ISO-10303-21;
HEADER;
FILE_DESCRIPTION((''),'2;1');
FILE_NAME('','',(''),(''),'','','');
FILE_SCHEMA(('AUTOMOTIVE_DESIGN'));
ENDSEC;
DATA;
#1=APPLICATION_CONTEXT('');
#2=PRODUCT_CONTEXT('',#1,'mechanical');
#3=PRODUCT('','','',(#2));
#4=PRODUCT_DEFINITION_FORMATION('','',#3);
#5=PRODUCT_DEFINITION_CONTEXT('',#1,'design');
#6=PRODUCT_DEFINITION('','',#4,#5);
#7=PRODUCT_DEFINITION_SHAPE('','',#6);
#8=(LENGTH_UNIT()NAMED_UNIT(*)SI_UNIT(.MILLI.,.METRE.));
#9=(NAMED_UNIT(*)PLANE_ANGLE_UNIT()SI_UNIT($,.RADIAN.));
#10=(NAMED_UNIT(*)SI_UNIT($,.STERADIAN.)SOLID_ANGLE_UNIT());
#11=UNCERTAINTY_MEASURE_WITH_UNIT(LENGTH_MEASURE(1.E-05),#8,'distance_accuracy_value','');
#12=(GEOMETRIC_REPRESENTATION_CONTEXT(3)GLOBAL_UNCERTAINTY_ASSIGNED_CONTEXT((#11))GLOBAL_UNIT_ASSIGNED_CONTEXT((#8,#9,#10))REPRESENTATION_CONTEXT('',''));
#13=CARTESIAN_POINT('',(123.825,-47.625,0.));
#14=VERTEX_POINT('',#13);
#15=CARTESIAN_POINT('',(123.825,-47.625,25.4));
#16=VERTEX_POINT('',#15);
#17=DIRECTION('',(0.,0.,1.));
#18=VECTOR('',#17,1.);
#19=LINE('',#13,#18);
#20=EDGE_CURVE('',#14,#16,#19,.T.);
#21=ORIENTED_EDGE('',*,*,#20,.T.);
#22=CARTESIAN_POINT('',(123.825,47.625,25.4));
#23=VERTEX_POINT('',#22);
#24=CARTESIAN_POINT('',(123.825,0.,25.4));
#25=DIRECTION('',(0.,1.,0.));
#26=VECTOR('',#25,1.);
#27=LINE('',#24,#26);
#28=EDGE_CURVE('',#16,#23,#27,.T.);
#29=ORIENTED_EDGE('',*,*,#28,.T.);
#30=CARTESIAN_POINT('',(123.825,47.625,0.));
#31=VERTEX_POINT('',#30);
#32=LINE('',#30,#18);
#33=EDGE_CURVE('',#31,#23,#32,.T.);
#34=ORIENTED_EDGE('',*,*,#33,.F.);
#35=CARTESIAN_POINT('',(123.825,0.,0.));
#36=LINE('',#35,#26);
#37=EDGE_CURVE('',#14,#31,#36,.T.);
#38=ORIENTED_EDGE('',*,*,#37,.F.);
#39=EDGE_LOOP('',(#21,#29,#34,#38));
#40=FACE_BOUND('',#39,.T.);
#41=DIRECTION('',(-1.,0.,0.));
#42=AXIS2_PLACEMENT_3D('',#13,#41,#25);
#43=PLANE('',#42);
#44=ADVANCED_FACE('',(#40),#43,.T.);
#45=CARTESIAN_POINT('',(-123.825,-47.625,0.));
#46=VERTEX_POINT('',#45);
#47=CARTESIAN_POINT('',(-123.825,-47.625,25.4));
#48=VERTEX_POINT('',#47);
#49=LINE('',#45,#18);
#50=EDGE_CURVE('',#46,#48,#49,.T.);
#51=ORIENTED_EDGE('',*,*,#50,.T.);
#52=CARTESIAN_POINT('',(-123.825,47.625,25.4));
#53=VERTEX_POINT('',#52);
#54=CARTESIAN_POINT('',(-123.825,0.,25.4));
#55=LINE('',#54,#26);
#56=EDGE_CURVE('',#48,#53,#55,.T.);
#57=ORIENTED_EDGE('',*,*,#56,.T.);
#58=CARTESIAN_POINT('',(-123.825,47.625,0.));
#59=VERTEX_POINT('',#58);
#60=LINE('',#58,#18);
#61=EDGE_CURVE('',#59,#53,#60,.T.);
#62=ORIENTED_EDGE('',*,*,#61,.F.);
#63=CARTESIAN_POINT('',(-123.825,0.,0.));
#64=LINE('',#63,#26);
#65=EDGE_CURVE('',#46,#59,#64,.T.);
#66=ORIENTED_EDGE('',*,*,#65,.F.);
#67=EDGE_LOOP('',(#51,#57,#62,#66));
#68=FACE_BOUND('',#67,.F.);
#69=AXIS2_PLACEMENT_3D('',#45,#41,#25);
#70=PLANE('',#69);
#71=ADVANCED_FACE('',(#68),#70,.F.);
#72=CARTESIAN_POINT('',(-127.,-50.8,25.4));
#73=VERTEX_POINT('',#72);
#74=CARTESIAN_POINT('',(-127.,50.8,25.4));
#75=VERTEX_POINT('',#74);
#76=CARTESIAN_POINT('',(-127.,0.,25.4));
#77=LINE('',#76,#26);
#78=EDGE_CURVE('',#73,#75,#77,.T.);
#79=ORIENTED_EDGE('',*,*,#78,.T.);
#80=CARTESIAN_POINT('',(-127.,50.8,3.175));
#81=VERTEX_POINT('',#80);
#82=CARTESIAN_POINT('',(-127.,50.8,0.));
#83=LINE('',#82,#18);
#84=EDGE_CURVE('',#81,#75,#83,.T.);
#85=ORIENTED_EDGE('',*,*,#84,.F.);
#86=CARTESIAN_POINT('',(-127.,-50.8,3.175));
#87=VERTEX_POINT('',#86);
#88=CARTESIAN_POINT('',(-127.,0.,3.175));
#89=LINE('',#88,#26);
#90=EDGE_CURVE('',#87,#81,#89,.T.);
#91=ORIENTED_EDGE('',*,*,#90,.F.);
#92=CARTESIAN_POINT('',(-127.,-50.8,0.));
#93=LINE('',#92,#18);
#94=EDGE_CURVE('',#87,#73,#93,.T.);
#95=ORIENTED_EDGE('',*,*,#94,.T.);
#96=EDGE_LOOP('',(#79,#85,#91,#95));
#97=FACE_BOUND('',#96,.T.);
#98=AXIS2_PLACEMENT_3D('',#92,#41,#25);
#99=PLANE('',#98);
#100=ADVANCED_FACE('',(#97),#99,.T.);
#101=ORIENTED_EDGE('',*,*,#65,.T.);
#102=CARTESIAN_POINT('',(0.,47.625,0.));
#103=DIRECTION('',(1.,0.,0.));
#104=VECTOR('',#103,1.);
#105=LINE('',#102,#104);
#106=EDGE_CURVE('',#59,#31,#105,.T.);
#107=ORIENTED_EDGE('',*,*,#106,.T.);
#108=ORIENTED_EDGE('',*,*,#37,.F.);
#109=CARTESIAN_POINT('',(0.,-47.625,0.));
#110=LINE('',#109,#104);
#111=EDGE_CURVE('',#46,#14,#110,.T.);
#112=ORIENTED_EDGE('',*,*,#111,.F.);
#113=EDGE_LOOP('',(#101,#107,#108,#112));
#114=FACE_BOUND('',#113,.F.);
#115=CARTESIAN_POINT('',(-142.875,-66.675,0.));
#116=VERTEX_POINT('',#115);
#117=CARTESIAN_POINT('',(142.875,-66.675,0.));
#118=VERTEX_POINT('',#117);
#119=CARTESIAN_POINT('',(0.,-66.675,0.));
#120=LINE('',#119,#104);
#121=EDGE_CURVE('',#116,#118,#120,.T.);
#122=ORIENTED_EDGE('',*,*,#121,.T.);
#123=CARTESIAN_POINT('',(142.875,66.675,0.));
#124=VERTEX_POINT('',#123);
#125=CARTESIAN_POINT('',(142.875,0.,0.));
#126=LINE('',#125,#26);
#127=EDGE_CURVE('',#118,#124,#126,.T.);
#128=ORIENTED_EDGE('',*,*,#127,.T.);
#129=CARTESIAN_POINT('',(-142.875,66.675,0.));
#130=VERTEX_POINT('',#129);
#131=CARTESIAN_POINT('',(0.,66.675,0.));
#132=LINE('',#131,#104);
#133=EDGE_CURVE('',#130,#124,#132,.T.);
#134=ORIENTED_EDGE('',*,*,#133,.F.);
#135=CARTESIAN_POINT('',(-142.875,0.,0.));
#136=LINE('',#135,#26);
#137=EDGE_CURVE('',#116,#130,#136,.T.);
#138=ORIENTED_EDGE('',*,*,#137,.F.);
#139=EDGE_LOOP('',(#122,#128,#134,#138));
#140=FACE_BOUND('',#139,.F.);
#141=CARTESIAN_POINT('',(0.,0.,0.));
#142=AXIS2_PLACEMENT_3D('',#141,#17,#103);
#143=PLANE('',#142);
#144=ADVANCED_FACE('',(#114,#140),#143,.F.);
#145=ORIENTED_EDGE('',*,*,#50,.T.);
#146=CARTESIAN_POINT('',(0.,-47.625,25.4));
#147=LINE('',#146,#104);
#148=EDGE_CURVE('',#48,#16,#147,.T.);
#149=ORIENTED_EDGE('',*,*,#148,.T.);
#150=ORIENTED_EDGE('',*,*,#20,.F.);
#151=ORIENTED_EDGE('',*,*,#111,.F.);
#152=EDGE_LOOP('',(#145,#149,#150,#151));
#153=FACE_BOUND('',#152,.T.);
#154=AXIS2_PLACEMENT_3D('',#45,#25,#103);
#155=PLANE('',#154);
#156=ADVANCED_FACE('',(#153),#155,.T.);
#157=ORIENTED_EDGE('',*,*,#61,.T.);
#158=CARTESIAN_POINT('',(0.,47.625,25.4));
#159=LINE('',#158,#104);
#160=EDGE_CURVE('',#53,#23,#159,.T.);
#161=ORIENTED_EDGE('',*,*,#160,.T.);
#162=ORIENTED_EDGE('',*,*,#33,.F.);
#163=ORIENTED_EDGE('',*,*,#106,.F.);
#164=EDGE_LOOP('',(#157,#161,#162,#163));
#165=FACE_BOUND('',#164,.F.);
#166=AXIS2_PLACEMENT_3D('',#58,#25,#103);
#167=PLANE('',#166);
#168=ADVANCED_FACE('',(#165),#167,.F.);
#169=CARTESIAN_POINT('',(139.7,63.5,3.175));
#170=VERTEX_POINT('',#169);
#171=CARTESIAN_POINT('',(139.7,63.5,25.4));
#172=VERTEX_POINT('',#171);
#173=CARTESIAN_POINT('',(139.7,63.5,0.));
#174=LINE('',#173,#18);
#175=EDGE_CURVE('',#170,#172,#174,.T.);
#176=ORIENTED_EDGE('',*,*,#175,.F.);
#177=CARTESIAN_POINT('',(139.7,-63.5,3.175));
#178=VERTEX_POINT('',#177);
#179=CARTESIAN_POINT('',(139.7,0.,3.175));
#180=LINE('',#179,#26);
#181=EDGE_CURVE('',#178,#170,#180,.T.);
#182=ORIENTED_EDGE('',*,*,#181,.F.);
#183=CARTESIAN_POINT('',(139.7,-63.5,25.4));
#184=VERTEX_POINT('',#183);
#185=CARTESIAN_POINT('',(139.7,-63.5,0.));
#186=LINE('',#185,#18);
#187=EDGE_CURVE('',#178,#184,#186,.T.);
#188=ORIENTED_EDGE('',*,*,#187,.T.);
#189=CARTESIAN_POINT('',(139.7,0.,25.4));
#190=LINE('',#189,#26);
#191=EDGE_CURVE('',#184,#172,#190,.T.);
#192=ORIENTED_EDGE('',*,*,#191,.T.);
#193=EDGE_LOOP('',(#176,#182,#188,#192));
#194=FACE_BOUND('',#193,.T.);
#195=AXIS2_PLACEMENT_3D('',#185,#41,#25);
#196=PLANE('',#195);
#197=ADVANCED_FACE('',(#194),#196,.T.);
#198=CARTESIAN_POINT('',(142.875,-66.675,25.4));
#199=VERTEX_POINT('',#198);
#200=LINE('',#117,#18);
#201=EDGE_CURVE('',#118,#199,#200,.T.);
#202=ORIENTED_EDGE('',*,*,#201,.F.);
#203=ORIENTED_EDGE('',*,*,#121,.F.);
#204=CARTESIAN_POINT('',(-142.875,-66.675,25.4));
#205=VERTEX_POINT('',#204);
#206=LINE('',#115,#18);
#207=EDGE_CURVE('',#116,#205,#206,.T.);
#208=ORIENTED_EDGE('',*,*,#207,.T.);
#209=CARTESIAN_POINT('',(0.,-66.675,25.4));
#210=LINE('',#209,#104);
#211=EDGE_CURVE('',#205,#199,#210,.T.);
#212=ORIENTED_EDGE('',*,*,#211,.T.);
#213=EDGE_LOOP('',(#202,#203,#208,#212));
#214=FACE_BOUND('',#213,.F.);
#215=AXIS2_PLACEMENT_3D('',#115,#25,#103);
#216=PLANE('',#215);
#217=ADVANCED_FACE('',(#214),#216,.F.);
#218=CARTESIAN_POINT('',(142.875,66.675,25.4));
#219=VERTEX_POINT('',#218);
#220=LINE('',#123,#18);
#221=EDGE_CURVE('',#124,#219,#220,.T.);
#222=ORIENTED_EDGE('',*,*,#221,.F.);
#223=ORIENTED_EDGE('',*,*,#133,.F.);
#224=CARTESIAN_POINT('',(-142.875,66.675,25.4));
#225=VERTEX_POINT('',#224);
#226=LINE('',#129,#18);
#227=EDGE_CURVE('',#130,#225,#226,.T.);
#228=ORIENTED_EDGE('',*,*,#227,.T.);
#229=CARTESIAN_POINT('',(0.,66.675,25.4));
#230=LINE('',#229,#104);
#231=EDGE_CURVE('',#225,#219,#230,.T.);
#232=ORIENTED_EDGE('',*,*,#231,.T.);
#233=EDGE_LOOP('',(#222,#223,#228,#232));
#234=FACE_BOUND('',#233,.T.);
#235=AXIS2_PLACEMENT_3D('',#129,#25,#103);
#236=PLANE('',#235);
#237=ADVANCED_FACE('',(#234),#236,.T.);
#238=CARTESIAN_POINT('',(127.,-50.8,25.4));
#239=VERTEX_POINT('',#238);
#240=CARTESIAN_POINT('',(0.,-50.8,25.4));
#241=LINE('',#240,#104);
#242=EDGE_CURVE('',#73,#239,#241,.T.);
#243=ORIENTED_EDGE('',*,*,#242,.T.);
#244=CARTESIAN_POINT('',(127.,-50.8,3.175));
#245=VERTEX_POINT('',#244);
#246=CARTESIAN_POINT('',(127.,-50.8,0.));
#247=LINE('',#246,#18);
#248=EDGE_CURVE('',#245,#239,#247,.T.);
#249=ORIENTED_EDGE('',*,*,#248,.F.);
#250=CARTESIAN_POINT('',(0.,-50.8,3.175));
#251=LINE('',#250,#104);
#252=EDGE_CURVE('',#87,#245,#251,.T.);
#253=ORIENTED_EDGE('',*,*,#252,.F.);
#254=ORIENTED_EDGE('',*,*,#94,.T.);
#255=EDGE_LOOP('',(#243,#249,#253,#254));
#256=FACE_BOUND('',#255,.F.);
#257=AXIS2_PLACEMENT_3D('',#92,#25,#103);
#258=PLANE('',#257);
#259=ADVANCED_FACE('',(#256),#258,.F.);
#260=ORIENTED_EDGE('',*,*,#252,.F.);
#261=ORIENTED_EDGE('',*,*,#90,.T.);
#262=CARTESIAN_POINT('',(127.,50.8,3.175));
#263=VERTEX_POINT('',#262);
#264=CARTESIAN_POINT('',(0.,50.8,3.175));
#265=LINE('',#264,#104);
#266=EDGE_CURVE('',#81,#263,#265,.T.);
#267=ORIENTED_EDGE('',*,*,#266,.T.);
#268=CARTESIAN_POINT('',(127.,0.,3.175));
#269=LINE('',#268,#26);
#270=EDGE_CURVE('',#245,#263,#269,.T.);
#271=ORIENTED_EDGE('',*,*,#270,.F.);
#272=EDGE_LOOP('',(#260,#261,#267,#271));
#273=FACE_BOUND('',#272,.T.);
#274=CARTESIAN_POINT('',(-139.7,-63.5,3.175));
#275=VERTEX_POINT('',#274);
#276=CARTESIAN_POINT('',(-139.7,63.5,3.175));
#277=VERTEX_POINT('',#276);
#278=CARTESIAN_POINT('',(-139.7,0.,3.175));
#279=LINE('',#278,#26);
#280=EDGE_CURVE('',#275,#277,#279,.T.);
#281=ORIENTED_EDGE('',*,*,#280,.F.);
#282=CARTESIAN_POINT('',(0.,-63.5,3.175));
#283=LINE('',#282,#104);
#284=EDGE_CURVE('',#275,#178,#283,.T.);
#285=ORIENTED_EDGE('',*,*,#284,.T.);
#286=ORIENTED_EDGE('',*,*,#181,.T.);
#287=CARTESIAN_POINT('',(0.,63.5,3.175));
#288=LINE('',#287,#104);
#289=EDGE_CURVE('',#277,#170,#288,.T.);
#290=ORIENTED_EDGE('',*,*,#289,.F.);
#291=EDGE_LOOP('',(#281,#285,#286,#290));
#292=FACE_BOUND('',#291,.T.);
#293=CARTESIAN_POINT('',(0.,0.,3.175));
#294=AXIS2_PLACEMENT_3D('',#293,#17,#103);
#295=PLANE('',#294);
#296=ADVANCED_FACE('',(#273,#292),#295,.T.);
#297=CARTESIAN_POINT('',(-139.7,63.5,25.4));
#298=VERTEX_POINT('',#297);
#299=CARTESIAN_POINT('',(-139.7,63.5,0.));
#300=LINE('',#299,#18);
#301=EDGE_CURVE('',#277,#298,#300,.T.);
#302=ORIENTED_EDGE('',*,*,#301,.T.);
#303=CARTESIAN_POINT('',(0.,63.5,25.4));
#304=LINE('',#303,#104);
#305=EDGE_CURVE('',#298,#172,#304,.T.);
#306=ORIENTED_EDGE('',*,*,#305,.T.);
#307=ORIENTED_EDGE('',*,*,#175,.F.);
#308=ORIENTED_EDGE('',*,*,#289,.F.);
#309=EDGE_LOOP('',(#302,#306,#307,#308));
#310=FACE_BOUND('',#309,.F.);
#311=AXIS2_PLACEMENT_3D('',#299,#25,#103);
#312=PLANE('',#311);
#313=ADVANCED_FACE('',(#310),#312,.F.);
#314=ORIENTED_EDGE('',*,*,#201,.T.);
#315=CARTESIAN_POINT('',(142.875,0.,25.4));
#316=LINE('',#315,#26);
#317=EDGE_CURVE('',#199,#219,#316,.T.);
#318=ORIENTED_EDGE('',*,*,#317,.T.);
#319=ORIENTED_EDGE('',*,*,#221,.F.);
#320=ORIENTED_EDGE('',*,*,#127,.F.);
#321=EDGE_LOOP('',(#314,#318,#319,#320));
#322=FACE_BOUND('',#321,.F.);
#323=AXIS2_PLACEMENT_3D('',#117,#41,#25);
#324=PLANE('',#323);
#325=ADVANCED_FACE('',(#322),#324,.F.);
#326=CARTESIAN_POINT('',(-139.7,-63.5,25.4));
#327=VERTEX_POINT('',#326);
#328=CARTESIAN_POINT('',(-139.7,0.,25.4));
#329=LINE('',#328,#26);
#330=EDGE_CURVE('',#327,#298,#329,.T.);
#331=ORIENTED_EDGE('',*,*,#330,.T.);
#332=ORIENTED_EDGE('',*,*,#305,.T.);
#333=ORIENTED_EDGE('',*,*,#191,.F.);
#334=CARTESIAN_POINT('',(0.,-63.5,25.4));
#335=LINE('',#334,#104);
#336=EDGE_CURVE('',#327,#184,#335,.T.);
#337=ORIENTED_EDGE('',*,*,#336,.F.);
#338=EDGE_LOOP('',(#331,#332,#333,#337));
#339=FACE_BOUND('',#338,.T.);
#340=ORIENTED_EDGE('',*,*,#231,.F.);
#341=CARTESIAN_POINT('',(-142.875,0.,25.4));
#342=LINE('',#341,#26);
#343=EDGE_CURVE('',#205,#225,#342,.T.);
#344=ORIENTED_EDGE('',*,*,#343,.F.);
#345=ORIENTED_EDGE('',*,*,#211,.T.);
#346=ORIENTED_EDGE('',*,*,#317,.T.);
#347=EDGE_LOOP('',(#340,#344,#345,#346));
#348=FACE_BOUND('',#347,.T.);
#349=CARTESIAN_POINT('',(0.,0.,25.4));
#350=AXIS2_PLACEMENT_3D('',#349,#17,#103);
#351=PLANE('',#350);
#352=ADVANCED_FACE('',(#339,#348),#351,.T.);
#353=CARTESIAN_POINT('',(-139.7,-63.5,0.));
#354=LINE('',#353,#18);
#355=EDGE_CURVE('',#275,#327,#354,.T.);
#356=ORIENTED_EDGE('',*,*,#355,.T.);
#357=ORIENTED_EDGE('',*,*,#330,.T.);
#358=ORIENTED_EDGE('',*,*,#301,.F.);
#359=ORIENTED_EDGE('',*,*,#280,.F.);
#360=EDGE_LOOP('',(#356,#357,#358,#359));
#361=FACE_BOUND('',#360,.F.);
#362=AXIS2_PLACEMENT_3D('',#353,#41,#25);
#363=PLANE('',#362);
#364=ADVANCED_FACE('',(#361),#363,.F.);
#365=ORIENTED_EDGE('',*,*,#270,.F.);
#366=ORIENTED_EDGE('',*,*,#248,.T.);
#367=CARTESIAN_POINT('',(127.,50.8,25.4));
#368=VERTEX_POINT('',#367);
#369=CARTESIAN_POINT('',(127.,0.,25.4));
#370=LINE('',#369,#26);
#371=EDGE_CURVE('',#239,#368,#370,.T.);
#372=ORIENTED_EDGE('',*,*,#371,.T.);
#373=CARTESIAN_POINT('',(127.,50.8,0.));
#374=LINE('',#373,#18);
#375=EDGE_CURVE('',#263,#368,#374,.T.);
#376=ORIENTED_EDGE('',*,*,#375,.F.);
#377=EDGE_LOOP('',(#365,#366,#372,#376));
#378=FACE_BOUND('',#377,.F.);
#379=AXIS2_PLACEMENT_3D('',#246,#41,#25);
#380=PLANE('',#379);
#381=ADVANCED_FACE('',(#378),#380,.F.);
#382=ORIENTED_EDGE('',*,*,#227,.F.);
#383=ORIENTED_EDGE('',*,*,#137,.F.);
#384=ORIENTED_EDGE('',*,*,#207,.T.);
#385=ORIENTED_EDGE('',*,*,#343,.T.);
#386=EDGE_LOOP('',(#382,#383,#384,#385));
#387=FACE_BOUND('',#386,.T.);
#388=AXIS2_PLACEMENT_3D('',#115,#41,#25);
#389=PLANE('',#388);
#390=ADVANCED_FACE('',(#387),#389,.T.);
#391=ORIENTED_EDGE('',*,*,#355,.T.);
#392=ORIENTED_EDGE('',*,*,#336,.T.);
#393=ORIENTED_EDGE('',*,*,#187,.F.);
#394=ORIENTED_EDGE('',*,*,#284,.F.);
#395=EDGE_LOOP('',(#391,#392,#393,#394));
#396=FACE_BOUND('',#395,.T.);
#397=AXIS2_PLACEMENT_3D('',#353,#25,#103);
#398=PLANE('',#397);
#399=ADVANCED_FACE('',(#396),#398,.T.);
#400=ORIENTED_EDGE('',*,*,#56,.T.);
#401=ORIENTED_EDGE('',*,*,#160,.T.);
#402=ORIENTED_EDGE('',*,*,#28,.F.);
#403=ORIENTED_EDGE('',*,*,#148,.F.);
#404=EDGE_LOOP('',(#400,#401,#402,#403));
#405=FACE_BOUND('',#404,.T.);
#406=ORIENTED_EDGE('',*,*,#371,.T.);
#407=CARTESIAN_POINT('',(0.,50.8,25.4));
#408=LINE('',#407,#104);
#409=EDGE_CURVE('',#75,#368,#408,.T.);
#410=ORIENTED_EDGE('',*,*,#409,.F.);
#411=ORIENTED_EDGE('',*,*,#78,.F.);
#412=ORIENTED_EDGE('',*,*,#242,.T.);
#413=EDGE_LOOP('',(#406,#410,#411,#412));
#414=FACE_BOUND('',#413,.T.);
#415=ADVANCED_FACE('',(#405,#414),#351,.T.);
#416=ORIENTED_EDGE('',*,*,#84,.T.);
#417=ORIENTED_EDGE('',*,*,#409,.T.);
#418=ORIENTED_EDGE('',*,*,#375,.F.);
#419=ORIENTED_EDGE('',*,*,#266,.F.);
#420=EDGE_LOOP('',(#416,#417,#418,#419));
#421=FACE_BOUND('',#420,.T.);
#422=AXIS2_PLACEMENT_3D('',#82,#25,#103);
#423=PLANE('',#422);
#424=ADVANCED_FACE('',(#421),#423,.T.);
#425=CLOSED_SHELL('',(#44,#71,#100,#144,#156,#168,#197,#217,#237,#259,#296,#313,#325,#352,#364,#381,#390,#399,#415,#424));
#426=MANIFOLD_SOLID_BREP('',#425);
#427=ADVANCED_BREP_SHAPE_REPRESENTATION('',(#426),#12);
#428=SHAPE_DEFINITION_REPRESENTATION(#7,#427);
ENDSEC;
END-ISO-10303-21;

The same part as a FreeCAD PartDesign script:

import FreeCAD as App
import Part
import Sketcher
Q = App.Units.Quantity

doc = App.newDocument("Part")
body = doc.addObject("PartDesign::Body", "Body")

# Sketch on XY plane
sketch1 = doc.addObject("Sketcher::SketchObject", "Sketch")
body.addObject(sketch1)
sketch1.AttachmentSupport = (doc.XY_Plane, [""])
sketch1.MapMode = "FlatFace"
sketch1.addGeometry([
    Part.LineSegment(App.Vector(-140, 64, 0), App.Vector(-140, -64, 0)),  # 0
    Part.LineSegment(App.Vector(-140, -64, 0), App.Vector(140, -64, 0)),  # 1
    Part.LineSegment(App.Vector(140, -64, 0), App.Vector(140, 64, 0)),  # 2
    Part.LineSegment(App.Vector(140, 64, 0), App.Vector(-140, 64, 0)),  # 3
    Part.LineSegment(App.Vector(127, -51, 0), App.Vector(-127, -51, 0)),  # 4
    Part.LineSegment(App.Vector(-127, -51, 0), App.Vector(-127, 51, 0)),  # 5
    Part.LineSegment(App.Vector(-127, 51, 0), App.Vector(127, 51, 0)),  # 6
    Part.LineSegment(App.Vector(127, 51, 0), App.Vector(127, -51, 0)),  # 7
], False)
sketch1.addConstraint([
    Sketcher.Constraint("Coincident", 0, 2, 1, 1),
    Sketcher.Constraint("Coincident", 1, 2, 2, 1),
    Sketcher.Constraint("Coincident", 2, 2, 3, 1),
    Sketcher.Constraint("Coincident", 3, 2, 0, 1),
    Sketcher.Constraint("Coincident", 4, 2, 5, 1),
    Sketcher.Constraint("Coincident", 5, 2, 6, 1),
    Sketcher.Constraint("Coincident", 6, 2, 7, 1),
    Sketcher.Constraint("Coincident", 7, 2, 4, 1),
    Sketcher.Constraint("Vertical", 0),
    Sketcher.Constraint("Horizontal", 1),
    Sketcher.Constraint("Vertical", 2),
    Sketcher.Constraint("Horizontal", 3),
    Sketcher.Constraint("Horizontal", 4),
    Sketcher.Constraint("Vertical", 5),
    Sketcher.Constraint("Horizontal", 6),
    Sketcher.Constraint("Vertical", 7),
    Sketcher.Constraint("Symmetric", 0, 2, 2, 2, -1, 1),
    Sketcher.Constraint("Symmetric", 4, 2, 6, 2, -1, 1),
    Sketcher.Constraint("DistanceX", 1, 1, 1, 2, Q("11 in")),
    Sketcher.Constraint("DistanceX", 4, 2, 4, 1, Q("10 in")),
    Sketcher.Constraint("DistanceY", 0, 2, 0, 1, Q("5 in")),
    Sketcher.Constraint("DistanceY", 5, 1, 5, 2, Q("4 in")),
])
pad1 = doc.addObject("PartDesign::Pad", "Pad")
body.addObject(pad1)
pad1.Profile = sketch1
pad1.Length = Q("0.125 in")

# Sketch on XY plane
sketch2 = doc.addObject("Sketcher::SketchObject", "Sketch001")
body.addObject(sketch2)
sketch2.AttachmentSupport = (doc.XY_Plane, [""])
sketch2.MapMode = "FlatFace"
sketch2.addGeometry([
    Part.LineSegment(App.Vector(-143, 67, 0), App.Vector(-143, -67, 0)),  # 0
    Part.LineSegment(App.Vector(-143, -67, 0), App.Vector(143, -67, 0)),  # 1
    Part.LineSegment(App.Vector(143, -67, 0), App.Vector(143, 67, 0)),  # 2
    Part.LineSegment(App.Vector(143, 67, 0), App.Vector(-143, 67, 0)),  # 3
    Part.LineSegment(App.Vector(140, -64, 0), App.Vector(-140, -64, 0)),  # 4
    Part.LineSegment(App.Vector(-140, -64, 0), App.Vector(-140, 64, 0)),  # 5
    Part.LineSegment(App.Vector(-140, 64, 0), App.Vector(140, 64, 0)),  # 6
    Part.LineSegment(App.Vector(140, 64, 0), App.Vector(140, -64, 0)),  # 7
], False)
sketch2.addConstraint([
    Sketcher.Constraint("Coincident", 0, 2, 1, 1),
    Sketcher.Constraint("Coincident", 1, 2, 2, 1),
    Sketcher.Constraint("Coincident", 2, 2, 3, 1),
    Sketcher.Constraint("Coincident", 3, 2, 0, 1),
    Sketcher.Constraint("Coincident", 4, 2, 5, 1),
    Sketcher.Constraint("Coincident", 5, 2, 6, 1),
    Sketcher.Constraint("Coincident", 6, 2, 7, 1),
    Sketcher.Constraint("Coincident", 7, 2, 4, 1),
    Sketcher.Constraint("Vertical", 0),
    Sketcher.Constraint("Horizontal", 1),
    Sketcher.Constraint("Vertical", 2),
    Sketcher.Constraint("Horizontal", 3),
    Sketcher.Constraint("Horizontal", 4),
    Sketcher.Constraint("Vertical", 5),
    Sketcher.Constraint("Horizontal", 6),
    Sketcher.Constraint("Vertical", 7),
    Sketcher.Constraint("Symmetric", 0, 2, 2, 2, -1, 1),
    Sketcher.Constraint("Symmetric", 4, 2, 6, 2, -1, 1),
    Sketcher.Constraint("DistanceX", 4, 2, 4, 1, Q("11 in")),
    Sketcher.Constraint("DistanceY", 5, 1, 5, 2, Q("5 in")),
    Sketcher.Constraint("DistanceX", 1, 1, 1, 2, Q("11.25 in")),
    Sketcher.Constraint("DistanceY", 0, 2, 0, 1, Q("5.25 in")),
])
pad2 = doc.addObject("PartDesign::Pad", "Pad001")
body.addObject(pad2)
pad2.Profile = sketch2
pad2.Length = Q("1 in")

# Sketch on XY plane
sketch3 = doc.addObject("Sketcher::SketchObject", "Sketch002")
body.addObject(sketch3)
sketch3.AttachmentSupport = (doc.XY_Plane, [""])
sketch3.MapMode = "FlatFace"
sketch3.addGeometry([
    Part.LineSegment(App.Vector(-127, 51, 0), App.Vector(-127, -51, 0)),  # 0
    Part.LineSegment(App.Vector(-127, -51, 0), App.Vector(127, -51, 0)),  # 1
    Part.LineSegment(App.Vector(127, -51, 0), App.Vector(127, 51, 0)),  # 2
    Part.LineSegment(App.Vector(127, 51, 0), App.Vector(-127, 51, 0)),  # 3
    Part.LineSegment(App.Vector(124, -48, 0), App.Vector(-124, -48, 0)),  # 4
    Part.LineSegment(App.Vector(-124, -48, 0), App.Vector(-124, 48, 0)),  # 5
    Part.LineSegment(App.Vector(-124, 48, 0), App.Vector(124, 48, 0)),  # 6
    Part.LineSegment(App.Vector(124, 48, 0), App.Vector(124, -48, 0)),  # 7
], False)
sketch3.addConstraint([
    Sketcher.Constraint("Coincident", 0, 2, 1, 1),
    Sketcher.Constraint("Coincident", 1, 2, 2, 1),
    Sketcher.Constraint("Coincident", 2, 2, 3, 1),
    Sketcher.Constraint("Coincident", 3, 2, 0, 1),
    Sketcher.Constraint("Coincident", 4, 2, 5, 1),
    Sketcher.Constraint("Coincident", 5, 2, 6, 1),
    Sketcher.Constraint("Coincident", 6, 2, 7, 1),
    Sketcher.Constraint("Coincident", 7, 2, 4, 1),
    Sketcher.Constraint("Vertical", 0),
    Sketcher.Constraint("Horizontal", 1),
    Sketcher.Constraint("Vertical", 2),
    Sketcher.Constraint("Horizontal", 3),
    Sketcher.Constraint("Horizontal", 4),
    Sketcher.Constraint("Vertical", 5),
    Sketcher.Constraint("Horizontal", 6),
    Sketcher.Constraint("Vertical", 7),
    Sketcher.Constraint("Symmetric", 0, 2, 2, 2, -1, 1),
    Sketcher.Constraint("Symmetric", 4, 2, 6, 2, -1, 1),
    Sketcher.Constraint("DistanceX", 1, 1, 1, 2, Q("10 in")),
    Sketcher.Constraint("DistanceY", 0, 2, 0, 1, Q("4 in")),
    Sketcher.Constraint("DistanceX", 4, 2, 4, 1, Q("9.75 in")),
    Sketcher.Constraint("DistanceY", 5, 1, 5, 2, Q("3.75 in")),
])
pad3 = doc.addObject("PartDesign::Pad", "Pad002")
body.addObject(pad3)
pad3.Profile = sketch3
pad3.Length = Q("1 in")

doc.recompute()
